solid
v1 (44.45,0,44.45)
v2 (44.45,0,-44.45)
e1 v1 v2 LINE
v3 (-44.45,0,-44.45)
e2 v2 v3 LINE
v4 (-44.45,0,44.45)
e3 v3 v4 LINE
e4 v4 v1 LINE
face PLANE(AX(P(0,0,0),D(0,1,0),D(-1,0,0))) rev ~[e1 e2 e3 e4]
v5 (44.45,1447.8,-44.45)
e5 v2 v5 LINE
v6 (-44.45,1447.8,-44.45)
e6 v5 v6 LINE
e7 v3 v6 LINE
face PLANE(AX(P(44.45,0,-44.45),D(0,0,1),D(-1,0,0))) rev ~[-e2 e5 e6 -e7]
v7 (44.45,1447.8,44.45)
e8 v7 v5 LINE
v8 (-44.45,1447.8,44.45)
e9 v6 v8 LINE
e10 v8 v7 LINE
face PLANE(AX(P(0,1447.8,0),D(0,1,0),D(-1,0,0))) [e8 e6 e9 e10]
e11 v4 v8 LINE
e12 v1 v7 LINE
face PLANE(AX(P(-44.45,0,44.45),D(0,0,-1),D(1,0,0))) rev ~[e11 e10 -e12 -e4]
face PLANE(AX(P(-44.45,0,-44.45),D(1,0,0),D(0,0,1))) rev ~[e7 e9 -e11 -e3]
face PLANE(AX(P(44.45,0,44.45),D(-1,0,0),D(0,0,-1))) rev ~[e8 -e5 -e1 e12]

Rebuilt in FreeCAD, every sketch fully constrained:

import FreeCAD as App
import Part
import Sketcher
Q = App.Units.Quantity

doc = App.newDocument("Part")
body = doc.addObject("PartDesign::Body", "Body")

# Sketch on XZ plane
sketch1 = doc.addObject("Sketcher::SketchObject", "Sketch")
body.addObject(sketch1)
sketch1.AttachmentSupport = (doc.XZ_Plane, [""])
sketch1.MapMode = "FlatFace"
sketch1.addGeometry(Part.LineSegment(App.Vector(-44, 44, 0), App.Vector(44, 44, 0)), False)
sketch1.addGeometry(Part.LineSegment(App.Vector(44, 44, 0), App.Vector(44, -44, 0)), False)
sketch1.addGeometry(Part.LineSegment(App.Vector(44, -44, 0), App.Vector(-44, -44, 0)), False)
sketch1.addGeometry(Part.LineSegment(App.Vector(-44, -44, 0), App.Vector(-44, 44, 0)), False)
sketch1.addConstraint(Sketcher.Constraint("Coincident", 0, 2, 1, 1))
sketch1.addConstraint(Sketcher.Constraint("Coincident", 1, 2, 2, 1))
sketch1.addConstraint(Sketcher.Constraint("Coincident", 2, 2, 3, 1))
sketch1.addConstraint(Sketcher.Constraint("Coincident", 3, 2, 0, 1))
sketch1.addConstraint(Sketcher.Constraint("Horizontal", 0))
sketch1.addConstraint(Sketcher.Constraint("Vertical", 1))
sketch1.addConstraint(Sketcher.Constraint("Horizontal", 2))
sketch1.addConstraint(Sketcher.Constraint("Vertical", 3))
sketch1.addConstraint(Sketcher.Constraint("Symmetric", 0, 2, 2, 2, -1, 1))
sketch1.addConstraint(Sketcher.Constraint("Equal", 2, 1))
sketch1.addConstraint(Sketcher.Constraint("DistanceX", 0, 1, 0, 2, Q("3.5 in")))
pad1 = doc.addObject("PartDesign::Pad", "Pad")
body.addObject(pad1)
pad1.Profile = sketch1
pad1.Length = Q("57 in")
pad1.Reversed = True

doc.recompute()
